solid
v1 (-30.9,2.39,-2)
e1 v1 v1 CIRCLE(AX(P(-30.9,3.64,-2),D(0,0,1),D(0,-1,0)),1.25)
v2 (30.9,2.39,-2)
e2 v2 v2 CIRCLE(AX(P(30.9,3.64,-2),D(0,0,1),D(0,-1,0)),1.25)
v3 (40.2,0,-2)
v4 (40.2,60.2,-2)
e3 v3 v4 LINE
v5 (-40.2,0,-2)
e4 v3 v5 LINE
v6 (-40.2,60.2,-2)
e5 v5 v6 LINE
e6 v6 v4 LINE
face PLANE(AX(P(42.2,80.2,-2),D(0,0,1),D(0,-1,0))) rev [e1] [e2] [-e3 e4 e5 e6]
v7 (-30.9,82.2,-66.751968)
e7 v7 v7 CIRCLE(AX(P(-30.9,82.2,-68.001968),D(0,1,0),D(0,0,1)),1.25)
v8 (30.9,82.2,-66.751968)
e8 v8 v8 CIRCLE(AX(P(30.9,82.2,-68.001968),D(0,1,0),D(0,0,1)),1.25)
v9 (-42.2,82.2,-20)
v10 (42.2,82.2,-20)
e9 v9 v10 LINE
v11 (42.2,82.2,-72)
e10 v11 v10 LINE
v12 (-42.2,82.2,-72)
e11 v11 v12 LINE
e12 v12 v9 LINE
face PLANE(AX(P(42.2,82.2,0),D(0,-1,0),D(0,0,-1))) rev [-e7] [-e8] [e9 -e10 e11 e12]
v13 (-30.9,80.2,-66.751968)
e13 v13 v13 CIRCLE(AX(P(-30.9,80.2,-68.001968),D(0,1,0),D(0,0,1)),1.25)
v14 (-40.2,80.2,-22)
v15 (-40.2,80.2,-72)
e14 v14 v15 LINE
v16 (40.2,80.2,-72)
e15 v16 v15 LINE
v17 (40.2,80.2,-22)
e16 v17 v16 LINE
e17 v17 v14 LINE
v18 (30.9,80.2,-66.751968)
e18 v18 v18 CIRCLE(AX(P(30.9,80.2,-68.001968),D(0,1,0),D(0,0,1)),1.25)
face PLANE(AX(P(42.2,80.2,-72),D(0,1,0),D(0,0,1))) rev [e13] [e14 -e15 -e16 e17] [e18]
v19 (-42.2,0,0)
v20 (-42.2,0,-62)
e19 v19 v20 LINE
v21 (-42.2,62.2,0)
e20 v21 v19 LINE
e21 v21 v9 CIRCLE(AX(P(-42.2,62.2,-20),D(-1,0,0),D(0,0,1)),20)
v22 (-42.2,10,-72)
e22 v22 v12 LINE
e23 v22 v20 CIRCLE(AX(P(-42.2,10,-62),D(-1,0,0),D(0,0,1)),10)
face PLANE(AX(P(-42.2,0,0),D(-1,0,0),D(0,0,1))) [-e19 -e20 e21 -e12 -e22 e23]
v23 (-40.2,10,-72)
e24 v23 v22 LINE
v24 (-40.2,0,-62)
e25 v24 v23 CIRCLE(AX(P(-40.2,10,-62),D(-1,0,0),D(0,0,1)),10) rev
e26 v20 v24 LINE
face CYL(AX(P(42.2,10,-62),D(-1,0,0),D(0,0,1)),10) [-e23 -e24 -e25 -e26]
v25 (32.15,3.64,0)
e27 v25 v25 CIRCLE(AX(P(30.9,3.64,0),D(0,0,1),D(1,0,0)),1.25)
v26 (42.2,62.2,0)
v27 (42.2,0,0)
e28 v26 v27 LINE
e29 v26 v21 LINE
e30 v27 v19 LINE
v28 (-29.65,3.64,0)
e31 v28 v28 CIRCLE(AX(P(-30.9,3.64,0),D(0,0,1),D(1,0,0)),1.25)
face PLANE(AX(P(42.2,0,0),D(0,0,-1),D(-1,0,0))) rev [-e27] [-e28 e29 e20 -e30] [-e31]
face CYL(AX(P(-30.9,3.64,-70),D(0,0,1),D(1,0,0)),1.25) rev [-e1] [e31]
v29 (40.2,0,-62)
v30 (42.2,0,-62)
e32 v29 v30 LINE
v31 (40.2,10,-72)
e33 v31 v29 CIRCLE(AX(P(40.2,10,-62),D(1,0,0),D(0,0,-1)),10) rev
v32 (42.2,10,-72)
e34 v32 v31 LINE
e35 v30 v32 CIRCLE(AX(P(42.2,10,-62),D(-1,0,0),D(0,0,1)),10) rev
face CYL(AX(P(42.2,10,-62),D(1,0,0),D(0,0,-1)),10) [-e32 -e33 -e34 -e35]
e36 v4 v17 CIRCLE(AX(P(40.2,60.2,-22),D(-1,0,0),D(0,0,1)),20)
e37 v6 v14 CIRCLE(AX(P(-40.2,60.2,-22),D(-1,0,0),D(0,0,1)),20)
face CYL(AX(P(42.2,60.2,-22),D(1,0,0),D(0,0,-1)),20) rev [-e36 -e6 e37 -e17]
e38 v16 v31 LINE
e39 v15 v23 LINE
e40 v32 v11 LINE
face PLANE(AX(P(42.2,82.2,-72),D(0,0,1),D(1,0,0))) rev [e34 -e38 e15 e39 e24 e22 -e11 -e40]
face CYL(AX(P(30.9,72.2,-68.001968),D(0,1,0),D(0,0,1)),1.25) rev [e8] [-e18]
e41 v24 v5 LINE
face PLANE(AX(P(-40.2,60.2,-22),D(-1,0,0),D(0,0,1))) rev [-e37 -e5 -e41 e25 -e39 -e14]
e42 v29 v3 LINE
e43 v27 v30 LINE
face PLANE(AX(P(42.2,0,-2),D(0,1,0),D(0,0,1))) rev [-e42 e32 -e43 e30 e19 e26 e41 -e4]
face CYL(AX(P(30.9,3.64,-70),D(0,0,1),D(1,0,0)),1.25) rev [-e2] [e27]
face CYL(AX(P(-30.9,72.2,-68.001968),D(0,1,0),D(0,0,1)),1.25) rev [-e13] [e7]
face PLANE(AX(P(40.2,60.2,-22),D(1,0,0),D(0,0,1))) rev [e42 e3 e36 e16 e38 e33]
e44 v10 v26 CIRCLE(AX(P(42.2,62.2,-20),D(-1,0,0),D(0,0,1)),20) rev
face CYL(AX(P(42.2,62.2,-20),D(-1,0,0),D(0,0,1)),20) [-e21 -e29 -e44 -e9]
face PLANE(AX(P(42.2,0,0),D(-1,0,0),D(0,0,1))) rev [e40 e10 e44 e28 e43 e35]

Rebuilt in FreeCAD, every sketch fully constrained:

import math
import FreeCAD as App
import Part
import Sketcher
Q = App.Units.Quantity


def edges_at(feature, points):
    """Names of the edges that pass closest to the given points."""
    edges = feature.Shape.Edges
    near = lambda p: min(range(len(edges)), key=lambda i: edges[i].distToShape(Part.Vertex(*p))[0])
    return sorted({f"Edge{near(p) + 1}" for p in points})

doc = App.newDocument("Part")
body = doc.addObject("PartDesign::Body", "Body")

# Sketch on YZ plane
sketch1 = body.newObject("Sketcher::SketchObject", "Sketch")
sketch1.AttachmentSupport = (doc.getObject("YZ_Plane"), [""])
sketch1.MapMode = "FlatFace"
sketch1.addGeometry([
    Part.LineSegment(App.Vector(82.2, 0, 0), App.Vector(0, 0, 0)),  # 0
    Part.LineSegment(App.Vector(0, 0, 0), App.Vector(0, -2, 0)),  # 1
    Part.LineSegment(App.Vector(0, -2, 0), App.Vector(80.2, -2, 0)),  # 2
    Part.LineSegment(App.Vector(80.2, -2, 0), App.Vector(80.2, -72, 0)),  # 3
    Part.LineSegment(App.Vector(80.2, -72, 0), App.Vector(82.2, -72, 0)),  # 4
    Part.LineSegment(App.Vector(82.2, -72, 0), App.Vector(82.2, 0, 0)),  # 5
], False)
sketch1.addConstraint([
    Sketcher.Constraint("Coincident", 0, 2, 1, 1),
    Sketcher.Constraint("Coincident", 1, 2, 2, 1),
    Sketcher.Constraint("Coincident", 2, 2, 3, 1),
    Sketcher.Constraint("Coincident", 3, 2, 4, 1),
    Sketcher.Constraint("Coincident", 4, 2, 5, 1),
    Sketcher.Constraint("Coincident", 5, 2, 0, 1),
    Sketcher.Constraint("Horizontal", 0),
    Sketcher.Constraint("Vertical", 1),
    Sketcher.Constraint("Horizontal", 2),
    Sketcher.Constraint("Vertical", 3),
    Sketcher.Constraint("Horizontal", 4),
    Sketcher.Constraint("Vertical", 5),
    Sketcher.Constraint("Coincident", 0, 2, -1, 1),
    Sketcher.Constraint("Equal", 4, 1),
    Sketcher.Constraint("DistanceX", 4, 1, 4, 2, Q("2 mm")),
    Sketcher.Constraint("DistanceY", 3, 2, 3, 1, Q("70 mm")),
    Sketcher.Constraint("DistanceX", 0, 2, 0, 1, Q("82.2 mm")),
])
pad1 = body.newObject("PartDesign::Pad", "Pad")
pad1.Profile = sketch1
pad1.Length = 84.4
pad1.Midplane = True

# Sketch on XY plane
sketch2 = body.newObject("Sketcher::SketchObject", "Sketch001")
sketch2.AttachmentSupport = (doc.getObject("XY_Plane"), [""])
sketch2.MapMode = "FlatFace"
sketch2.addGeometry([
    Part.Circle(App.Vector(-30.9, 3.64, 0), App.Vector(0, 0, 1), 1.25),
    Part.Circle(App.Vector(30.9, 3.64, 0), App.Vector(0, 0, 1), 1.25),
], False)
sketch2.addConstraint([
    Sketcher.Constraint("Equal", 0, 1),
    Sketcher.Constraint("Symmetric", 0, 3, 1, 3, -2),
    Sketcher.Constraint("Diameter", 0, Q("2.5 mm")),
    Sketcher.Constraint("DistanceX", 0, 3, -1, 1, Q("30.9 mm")),
    Sketcher.Constraint("DistanceY", -1, 1, 0, 3, Q("3.64 mm")),
])
pocket1 = body.newObject("PartDesign::Pocket", "Pocket")
pocket1.Profile = sketch2
pocket1.Length = 70
doc.recompute()

fillet = body.newObject("PartDesign::Fillet", "Fillet")
fillet.Base = (pocket1, edges_at(pocket1, [(0, 82.2, 0), (0, 80.2, -2)]))
fillet.Radius = 20

# Sketch on YZ plane
sketch3 = body.newObject("Sketcher::SketchObject", "Sketch002")
sketch3.AttachmentSupport = (doc.getObject("YZ_Plane"), [""])
sketch3.MapMode = "FlatFace"
sketch3.AttachmentOffset = App.Placement(App.Vector(0, 0, -42.2), App.Rotation())
sketch3.addGeometry([
    Part.LineSegment(App.Vector(80.2, -72, 0), App.Vector(0, -72, 0)),  # 0
    Part.LineSegment(App.Vector(0, -72, 0), App.Vector(0, -2, 0)),  # 1
    Part.LineSegment(App.Vector(0, -2, 0), App.Vector(60.2, -2, 0)),  # 2
    Part.ArcOfCircle(Part.Circle(App.Vector(60.2, -22, 0), App.Vector(0, 0, 1), 20), math.radians(0), math.radians(90)),  # 3
    Part.LineSegment(App.Vector(80.2, -22, 0), App.Vector(80.2, -72, 0)),  # 4
], False)
sketch3.addConstraint([
    Sketcher.Constraint("Coincident", 0, 2, 1, 1),
    Sketcher.Constraint("Coincident", 1, 2, 2, 1),
    Sketcher.Constraint("Tangent", 2, 2, 3, 2),
    Sketcher.Constraint("Tangent", 3, 1, 4, 1),
    Sketcher.Constraint("Coincident", 4, 2, 0, 1),
    Sketcher.Constraint("Horizontal", 0),
    Sketcher.Constraint("Vertical", 1),
    Sketcher.Constraint("Horizontal", 2),
    Sketcher.Constraint("Vertical", 4),
    Sketcher.Constraint("PointOnObject", 0, 2, -2),
    Sketcher.Constraint("Radius", 3, Q("20 mm")),
    Sketcher.Constraint("DistanceY", 1, 1, 1, 2, Q("70 mm")),
    Sketcher.Constraint("DistanceX", 0, 2, 0, 1, Q("80.2 mm")),
    Sketcher.Constraint("DistanceY", 3, 3, -1, 1, Q("22 mm")),
])
pad2 = body.newObject("PartDesign::Pad", "Pad001")
pad2.Profile = sketch3
pad2.Length = 2
doc.recompute()

mirrored = body.newObject("PartDesign::Mirrored", "Mirrored")
mirrored.Originals = [pad2]
mirrored.MirrorPlane = (doc.getObject("YZ_Plane"), [""])
body.Tip = mirrored
doc.recompute()

fillet2 = body.newObject("PartDesign::Fillet", "Fillet001")
fillet2.Base = (mirrored, edges_at(mirrored, [(-41.2, 0, -72), (41.2, 0, -72)]))
fillet2.Radius = 10

# Sketch on XZ plane
sketch4 = body.newObject("Sketcher::SketchObject", "Sketch003")
sketch4.AttachmentSupport = (doc.getObject("XZ_Plane"), [""])
sketch4.MapMode = "FlatFace"
sketch4.AttachmentOffset = App.Placement(App.Vector(0, 0, -82.2), App.Rotation())
sketch4.addGeometry([
    Part.Circle(App.Vector(-30.9, -68.001968, 0), App.Vector(0, 0, 1), 1.25),
    Part.Circle(App.Vector(30.9, -68.001968, 0), App.Vector(0, 0, 1), 1.25),
], False)
sketch4.addConstraint([
    Sketcher.Constraint("Equal", 0, 1),
    Sketcher.Constraint("Symmetric", 0, 3, 1, 3, -2),
    Sketcher.Constraint("Diameter", 0, Q("2.5 mm")),
    Sketcher.Constraint("DistanceX", 0, 3, -1, 1, Q("30.9 mm")),
    Sketcher.Constraint("DistanceY", 0, 3, -1, 1, Q("68.001968 mm")),
])
pocket2 = body.newObject("PartDesign::Pocket", "Pocket001")
pocket2.Profile = sketch4
pocket2.Length = 10
pocket2.Reversed = True

doc.recompute()
